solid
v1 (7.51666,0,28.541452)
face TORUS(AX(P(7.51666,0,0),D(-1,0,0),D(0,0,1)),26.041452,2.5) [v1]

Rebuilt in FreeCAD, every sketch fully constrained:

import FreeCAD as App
import Part
import Sketcher

doc = App.newDocument("Part")
body = doc.addObject("PartDesign::Body", "Body")

# Sketch on XY plane
sketch1 = body.newObject("Sketcher::SketchObject", "Sketch")
sketch1.AttachmentSupport = (doc.getObject("XY_Plane"), [""])
sketch1.MapMode = "FlatFace"
sketch1.addGeometry(Part.Circle(App.Vector(7.5, 26, 0), App.Vector(0, 0, 1), 2.5), False)
sketch1.addConstraint(Sketcher.Constraint("Diameter", 0, 5.0))
sketch1.addConstraint(Sketcher.Constraint("DistanceX", -1, 1, 0, 3, 7.51666))
sketch1.addConstraint(Sketcher.Constraint("DistanceY", -1, 1, 0, 3, 26.041452))
revolution = body.newObject("PartDesign::Revolution", "Revolution")
revolution.Profile = sketch1
revolution.ReferenceAxis = (sketch1, ["H_Axis"])
revolution.Angle = 360

doc.recompute()
